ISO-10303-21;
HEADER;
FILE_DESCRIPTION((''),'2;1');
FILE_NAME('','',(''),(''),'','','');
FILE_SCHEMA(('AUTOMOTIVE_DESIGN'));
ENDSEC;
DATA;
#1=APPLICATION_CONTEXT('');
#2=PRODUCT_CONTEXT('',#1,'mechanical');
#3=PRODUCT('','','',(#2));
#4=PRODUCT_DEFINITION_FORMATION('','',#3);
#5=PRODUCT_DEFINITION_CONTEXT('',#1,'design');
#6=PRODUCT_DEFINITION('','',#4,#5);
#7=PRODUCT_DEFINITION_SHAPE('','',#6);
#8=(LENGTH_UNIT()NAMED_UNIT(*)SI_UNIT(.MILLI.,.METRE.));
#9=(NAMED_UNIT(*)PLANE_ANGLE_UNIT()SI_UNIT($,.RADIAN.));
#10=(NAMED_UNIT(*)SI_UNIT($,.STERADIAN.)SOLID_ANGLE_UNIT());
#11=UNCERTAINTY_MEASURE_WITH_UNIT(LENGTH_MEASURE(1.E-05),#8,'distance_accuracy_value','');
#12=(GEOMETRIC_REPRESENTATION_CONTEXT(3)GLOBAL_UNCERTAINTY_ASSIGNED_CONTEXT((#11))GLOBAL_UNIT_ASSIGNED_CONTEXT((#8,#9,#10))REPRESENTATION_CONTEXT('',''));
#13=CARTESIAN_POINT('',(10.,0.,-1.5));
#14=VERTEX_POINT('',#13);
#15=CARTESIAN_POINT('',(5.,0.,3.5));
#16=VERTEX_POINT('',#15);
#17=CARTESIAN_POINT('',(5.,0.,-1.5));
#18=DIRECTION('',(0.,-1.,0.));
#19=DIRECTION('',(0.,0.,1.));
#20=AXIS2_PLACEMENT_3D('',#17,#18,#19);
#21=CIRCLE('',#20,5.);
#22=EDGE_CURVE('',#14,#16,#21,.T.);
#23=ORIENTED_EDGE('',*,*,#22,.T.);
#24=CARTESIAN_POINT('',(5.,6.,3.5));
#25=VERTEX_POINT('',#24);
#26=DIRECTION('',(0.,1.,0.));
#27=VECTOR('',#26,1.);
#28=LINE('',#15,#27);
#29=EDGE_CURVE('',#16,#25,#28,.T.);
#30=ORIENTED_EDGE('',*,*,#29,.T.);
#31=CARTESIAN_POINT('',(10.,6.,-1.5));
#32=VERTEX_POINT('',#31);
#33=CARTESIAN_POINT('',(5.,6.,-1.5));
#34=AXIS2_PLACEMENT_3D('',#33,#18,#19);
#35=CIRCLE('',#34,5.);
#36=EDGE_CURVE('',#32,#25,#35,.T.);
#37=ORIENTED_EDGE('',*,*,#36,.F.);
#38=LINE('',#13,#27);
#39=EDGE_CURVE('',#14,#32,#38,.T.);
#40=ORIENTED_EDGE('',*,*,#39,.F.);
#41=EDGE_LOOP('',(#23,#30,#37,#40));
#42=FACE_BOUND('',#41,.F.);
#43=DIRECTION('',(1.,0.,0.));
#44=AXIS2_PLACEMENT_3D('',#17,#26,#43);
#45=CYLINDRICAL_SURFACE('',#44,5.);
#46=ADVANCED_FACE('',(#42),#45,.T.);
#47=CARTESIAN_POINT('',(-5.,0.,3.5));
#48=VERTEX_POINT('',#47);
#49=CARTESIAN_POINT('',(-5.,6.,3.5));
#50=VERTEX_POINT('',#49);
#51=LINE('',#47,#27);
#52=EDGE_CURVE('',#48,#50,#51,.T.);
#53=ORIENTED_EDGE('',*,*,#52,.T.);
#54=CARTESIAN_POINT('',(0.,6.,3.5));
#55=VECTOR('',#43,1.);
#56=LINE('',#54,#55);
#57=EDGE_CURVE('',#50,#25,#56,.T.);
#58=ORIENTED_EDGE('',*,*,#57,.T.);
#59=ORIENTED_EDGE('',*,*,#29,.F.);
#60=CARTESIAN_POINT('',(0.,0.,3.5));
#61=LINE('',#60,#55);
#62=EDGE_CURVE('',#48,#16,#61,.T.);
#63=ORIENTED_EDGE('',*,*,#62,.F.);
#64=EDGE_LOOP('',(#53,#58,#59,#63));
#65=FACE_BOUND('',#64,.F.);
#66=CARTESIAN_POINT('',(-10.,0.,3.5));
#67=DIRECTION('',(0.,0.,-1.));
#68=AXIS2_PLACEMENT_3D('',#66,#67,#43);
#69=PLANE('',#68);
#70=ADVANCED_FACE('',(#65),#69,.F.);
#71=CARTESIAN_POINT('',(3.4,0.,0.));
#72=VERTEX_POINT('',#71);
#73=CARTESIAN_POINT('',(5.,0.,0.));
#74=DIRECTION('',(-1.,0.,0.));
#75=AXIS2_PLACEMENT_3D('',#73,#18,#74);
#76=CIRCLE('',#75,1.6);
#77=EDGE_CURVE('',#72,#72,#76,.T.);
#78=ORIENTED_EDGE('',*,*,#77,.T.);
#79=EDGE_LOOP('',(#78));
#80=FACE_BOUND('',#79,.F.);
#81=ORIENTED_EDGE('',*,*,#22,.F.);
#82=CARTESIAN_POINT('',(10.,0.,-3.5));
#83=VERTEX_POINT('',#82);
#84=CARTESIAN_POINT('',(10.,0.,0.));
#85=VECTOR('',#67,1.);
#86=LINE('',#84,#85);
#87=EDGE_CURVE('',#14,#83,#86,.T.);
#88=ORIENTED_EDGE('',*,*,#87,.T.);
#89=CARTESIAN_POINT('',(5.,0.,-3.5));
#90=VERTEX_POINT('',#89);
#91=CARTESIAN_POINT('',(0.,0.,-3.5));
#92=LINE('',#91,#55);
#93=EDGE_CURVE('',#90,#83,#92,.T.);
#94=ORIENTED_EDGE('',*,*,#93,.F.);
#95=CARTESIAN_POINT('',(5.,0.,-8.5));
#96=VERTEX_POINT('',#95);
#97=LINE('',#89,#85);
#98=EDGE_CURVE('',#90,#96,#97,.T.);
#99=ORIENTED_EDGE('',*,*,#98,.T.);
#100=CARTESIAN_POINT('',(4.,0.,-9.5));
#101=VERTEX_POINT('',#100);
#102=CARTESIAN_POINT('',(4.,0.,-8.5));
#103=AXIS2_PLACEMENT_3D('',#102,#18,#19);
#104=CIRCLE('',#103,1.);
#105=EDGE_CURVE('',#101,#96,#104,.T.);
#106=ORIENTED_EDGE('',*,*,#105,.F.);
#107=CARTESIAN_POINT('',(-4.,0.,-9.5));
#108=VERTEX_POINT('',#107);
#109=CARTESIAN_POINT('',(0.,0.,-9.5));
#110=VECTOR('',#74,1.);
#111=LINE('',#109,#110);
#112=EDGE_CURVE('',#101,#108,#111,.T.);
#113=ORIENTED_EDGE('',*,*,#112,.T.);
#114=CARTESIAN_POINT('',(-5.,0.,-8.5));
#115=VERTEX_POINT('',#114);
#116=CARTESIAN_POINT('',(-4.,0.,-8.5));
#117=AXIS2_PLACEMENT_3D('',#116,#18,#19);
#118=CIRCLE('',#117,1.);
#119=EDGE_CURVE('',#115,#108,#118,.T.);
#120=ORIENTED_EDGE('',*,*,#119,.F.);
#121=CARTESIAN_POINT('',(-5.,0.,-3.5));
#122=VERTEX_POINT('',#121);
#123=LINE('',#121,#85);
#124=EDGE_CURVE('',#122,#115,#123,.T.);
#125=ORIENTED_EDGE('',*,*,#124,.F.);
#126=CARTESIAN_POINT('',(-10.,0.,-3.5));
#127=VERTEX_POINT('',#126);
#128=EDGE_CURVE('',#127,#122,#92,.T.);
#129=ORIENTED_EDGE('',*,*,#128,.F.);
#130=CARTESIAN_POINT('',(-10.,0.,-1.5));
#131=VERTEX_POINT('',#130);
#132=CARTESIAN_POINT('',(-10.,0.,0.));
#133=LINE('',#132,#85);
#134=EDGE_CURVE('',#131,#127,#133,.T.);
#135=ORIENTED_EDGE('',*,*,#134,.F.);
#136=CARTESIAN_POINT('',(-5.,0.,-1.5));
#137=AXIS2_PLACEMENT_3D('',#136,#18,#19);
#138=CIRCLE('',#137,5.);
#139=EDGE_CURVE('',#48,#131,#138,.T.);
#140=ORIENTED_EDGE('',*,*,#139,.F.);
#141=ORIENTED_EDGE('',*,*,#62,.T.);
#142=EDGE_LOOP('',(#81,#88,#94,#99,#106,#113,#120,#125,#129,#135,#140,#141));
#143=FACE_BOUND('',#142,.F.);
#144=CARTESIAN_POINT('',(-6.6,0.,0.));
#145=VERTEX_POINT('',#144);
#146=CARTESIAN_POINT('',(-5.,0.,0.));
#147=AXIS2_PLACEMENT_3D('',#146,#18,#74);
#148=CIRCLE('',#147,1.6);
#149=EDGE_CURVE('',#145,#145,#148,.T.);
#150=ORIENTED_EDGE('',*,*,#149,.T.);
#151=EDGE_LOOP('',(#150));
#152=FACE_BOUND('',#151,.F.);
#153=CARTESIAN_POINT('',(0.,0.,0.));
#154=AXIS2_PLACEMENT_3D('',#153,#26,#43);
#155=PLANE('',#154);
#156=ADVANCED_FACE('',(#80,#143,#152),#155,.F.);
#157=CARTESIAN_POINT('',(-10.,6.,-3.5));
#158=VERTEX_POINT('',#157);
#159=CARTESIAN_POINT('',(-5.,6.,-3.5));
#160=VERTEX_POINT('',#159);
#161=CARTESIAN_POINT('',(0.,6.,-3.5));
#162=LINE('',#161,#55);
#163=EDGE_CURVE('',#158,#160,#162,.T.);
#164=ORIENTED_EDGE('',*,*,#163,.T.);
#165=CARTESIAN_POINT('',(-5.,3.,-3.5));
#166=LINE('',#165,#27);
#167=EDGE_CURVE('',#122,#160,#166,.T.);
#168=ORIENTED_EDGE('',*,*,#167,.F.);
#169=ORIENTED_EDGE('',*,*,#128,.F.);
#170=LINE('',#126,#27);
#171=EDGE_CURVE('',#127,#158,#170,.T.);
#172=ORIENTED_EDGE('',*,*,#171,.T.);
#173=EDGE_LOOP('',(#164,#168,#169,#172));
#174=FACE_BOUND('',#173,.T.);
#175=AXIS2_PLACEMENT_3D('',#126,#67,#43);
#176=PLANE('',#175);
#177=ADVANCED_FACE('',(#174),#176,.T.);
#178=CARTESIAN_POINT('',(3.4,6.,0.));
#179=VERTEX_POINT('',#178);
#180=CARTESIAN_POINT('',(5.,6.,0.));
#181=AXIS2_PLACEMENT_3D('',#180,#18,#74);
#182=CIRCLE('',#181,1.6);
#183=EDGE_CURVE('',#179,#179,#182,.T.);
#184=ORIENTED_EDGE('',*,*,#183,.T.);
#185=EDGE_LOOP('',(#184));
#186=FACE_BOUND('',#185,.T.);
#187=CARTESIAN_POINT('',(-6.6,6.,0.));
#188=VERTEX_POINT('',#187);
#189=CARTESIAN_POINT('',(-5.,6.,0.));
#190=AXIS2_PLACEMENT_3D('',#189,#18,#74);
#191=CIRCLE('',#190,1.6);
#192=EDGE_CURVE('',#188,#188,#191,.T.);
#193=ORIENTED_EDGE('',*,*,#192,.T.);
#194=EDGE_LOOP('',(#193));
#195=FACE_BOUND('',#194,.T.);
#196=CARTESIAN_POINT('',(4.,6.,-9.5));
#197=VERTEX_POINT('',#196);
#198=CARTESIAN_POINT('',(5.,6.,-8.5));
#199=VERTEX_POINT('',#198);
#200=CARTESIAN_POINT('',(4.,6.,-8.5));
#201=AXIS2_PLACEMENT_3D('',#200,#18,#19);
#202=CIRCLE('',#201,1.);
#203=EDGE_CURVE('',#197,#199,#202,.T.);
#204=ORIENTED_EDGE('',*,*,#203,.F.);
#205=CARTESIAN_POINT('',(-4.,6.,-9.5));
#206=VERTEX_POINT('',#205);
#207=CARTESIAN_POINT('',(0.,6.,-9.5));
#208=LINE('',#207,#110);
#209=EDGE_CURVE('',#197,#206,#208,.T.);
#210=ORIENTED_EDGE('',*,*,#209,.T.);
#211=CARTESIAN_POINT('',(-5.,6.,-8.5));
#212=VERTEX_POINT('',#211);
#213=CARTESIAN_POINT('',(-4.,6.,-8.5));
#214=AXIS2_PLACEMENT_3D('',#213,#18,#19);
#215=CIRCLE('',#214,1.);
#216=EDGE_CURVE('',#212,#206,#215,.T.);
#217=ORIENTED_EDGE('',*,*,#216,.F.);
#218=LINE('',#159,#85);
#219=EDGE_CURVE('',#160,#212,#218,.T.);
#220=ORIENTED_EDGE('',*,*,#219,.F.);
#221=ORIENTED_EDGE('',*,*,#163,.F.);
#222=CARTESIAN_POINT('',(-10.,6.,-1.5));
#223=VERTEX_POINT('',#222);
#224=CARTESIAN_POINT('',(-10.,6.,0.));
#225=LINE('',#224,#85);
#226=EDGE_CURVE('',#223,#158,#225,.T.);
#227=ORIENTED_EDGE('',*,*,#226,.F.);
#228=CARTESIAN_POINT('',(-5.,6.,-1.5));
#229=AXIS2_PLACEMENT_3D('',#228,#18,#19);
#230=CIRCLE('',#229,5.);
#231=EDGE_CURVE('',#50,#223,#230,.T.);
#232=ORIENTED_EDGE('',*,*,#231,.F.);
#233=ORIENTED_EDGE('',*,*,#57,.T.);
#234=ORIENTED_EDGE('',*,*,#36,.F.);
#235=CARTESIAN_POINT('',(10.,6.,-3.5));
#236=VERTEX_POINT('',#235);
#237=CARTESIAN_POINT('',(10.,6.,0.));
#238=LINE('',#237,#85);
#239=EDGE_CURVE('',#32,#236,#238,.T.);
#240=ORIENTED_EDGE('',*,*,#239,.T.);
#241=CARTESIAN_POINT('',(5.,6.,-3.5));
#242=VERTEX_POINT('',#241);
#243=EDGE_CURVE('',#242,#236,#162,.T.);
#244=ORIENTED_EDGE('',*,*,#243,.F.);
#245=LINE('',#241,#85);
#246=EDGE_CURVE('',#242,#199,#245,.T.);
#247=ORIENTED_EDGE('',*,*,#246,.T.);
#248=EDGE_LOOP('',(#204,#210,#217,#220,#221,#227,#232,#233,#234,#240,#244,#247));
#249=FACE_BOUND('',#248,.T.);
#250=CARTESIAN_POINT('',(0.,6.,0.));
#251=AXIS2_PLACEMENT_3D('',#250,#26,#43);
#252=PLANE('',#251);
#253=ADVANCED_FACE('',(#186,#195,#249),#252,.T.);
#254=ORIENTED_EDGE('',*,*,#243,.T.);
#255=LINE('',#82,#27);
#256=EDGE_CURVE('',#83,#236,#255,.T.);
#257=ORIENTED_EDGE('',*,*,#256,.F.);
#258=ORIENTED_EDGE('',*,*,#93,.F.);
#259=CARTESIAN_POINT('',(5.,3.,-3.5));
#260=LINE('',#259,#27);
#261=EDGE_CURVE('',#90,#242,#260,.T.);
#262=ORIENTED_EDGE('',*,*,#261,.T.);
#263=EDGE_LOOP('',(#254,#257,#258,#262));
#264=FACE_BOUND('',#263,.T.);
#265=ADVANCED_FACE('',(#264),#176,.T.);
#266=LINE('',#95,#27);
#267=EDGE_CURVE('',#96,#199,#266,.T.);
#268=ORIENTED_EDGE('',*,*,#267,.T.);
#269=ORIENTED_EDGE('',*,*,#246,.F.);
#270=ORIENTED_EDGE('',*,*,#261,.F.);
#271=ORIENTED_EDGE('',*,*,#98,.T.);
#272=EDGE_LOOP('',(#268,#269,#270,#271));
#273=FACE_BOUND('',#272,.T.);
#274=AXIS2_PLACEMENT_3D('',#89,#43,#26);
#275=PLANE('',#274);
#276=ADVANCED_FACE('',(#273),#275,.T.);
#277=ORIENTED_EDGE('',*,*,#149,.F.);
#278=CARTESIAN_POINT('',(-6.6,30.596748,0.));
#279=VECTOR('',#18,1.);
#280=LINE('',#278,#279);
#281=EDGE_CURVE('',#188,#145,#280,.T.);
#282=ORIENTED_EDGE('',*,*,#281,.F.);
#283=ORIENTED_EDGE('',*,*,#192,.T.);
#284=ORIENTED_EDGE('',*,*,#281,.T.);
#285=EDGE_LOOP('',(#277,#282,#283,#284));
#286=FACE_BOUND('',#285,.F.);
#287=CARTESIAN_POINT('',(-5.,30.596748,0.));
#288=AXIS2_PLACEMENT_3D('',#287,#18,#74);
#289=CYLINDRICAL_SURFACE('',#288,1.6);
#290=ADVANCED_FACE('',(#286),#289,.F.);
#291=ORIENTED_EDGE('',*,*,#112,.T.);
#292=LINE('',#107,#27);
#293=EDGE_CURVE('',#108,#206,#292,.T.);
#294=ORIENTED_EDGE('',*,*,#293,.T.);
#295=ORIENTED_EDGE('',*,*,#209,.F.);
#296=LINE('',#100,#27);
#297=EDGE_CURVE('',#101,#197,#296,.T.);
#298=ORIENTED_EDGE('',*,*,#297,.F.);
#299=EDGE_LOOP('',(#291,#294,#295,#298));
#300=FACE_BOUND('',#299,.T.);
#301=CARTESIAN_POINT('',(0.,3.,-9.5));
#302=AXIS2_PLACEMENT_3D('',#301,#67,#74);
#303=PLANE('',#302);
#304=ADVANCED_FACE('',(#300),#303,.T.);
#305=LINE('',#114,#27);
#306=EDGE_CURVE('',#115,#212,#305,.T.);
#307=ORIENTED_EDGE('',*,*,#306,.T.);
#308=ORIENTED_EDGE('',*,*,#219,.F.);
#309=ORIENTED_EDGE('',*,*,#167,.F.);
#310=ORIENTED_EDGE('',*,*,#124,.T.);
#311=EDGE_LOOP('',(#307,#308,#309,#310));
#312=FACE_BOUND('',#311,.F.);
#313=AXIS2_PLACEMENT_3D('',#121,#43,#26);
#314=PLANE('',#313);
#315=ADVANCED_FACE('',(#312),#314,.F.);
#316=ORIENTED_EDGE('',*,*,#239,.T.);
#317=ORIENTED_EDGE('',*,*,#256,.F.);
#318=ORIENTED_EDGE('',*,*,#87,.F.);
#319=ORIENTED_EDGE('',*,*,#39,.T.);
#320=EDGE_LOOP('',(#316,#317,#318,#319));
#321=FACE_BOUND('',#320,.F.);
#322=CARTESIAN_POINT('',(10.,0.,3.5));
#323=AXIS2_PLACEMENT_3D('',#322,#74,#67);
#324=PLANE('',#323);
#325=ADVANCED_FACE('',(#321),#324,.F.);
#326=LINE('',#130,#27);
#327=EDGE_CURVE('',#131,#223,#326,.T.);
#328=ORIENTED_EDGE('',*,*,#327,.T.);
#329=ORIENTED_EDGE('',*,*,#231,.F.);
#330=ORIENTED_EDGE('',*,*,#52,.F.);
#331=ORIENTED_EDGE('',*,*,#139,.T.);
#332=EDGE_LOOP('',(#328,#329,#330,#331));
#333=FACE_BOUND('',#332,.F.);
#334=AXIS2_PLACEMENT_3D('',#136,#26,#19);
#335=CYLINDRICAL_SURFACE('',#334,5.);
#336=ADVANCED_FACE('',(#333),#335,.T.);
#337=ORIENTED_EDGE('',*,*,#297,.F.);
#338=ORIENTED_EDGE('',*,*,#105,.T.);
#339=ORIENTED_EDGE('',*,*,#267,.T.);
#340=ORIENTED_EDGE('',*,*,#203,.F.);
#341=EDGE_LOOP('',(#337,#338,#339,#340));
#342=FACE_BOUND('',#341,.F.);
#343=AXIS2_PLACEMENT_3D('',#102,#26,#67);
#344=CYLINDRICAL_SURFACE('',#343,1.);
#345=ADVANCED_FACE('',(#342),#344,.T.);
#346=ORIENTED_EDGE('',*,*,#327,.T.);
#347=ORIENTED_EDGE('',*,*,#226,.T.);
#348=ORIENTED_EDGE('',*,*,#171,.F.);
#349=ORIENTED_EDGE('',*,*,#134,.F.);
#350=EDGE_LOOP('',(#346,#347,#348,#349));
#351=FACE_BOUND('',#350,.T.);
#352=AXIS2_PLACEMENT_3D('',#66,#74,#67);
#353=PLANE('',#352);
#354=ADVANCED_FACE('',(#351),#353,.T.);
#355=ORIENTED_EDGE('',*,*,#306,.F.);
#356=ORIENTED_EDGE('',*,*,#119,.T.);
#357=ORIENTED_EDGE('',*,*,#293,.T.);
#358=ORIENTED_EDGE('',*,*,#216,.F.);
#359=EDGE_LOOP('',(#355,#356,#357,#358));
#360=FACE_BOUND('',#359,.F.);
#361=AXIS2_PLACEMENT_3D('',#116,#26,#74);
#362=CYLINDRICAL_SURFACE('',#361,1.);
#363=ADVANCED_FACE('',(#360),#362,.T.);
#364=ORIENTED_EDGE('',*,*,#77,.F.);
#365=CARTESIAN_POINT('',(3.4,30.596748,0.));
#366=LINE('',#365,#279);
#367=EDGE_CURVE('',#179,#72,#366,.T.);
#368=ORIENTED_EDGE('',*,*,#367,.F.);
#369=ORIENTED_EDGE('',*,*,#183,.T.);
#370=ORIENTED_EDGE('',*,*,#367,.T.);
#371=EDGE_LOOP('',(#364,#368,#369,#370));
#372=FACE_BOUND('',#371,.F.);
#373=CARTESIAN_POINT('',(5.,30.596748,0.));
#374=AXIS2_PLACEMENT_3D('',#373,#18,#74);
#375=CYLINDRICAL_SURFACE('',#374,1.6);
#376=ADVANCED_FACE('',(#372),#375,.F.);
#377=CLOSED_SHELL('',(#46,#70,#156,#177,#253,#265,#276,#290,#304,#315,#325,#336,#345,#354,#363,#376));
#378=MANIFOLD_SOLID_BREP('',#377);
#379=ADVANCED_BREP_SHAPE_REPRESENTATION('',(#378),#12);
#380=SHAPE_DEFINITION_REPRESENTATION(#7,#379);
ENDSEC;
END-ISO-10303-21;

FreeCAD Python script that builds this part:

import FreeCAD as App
import Part
import Sketcher
from FreeCAD import Vector
Q = App.Units.Quantity


def edges_at(feature, points):
    """Names of the edges that pass closest to the given points."""
    edges = feature.Shape.Edges
    near = lambda p: min(range(len(edges)), key=lambda i: edges[i].distToShape(Part.Vertex(*p))[0])
    return sorted({f"Edge{near(p) + 1}" for p in points})


def add_polygon(sketch, points):
    """Adds a closed chain of lines whose ends are joined by coincident constraints."""
    first, n = sketch.GeometryCount, len(points)
    for a, b in zip(points, points[1:] + points[:1]):
        sketch.addGeometry(Part.LineSegment(App.Vector(*a, 0), App.Vector(*b, 0)), False)
    for i in range(n):
        sketch.addConstraint(Sketcher.Constraint("Coincident", first + i, 2, first + (i + 1) % n, 1))

doc = App.newDocument("Part")
body = doc.addObject("PartDesign::Body", "Body")

sketch1 = body.newObject("Sketcher::SketchObject", "Sketch")
sketch1.AttachmentSupport = (doc.getObject("XZ_Plane"), [""])
sketch1.MapMode = "FlatFace"
add_polygon(sketch1, [(-10, -3.5), (-10, 3.5), (10, 3.5), (10, -3.5)])
sketch1.addConstraint(Sketcher.Constraint("Vertical", 0))
sketch1.addConstraint(Sketcher.Constraint("Horizontal", 1))
sketch1.addConstraint(Sketcher.Constraint("Vertical", 2))
sketch1.addConstraint(Sketcher.Constraint("Horizontal", 3))
sketch1.addConstraint(Sketcher.Constraint("Symmetric", 0, 2, 2, 2, -1, 1))
sketch1.addConstraint(Sketcher.Constraint("DistanceX", 1, 1, 1, 2, Q("20 mm")))
sketch1.addConstraint(Sketcher.Constraint("DistanceY", 0, 1, 0, 2, Q("7 mm")))
pad1 = body.newObject("PartDesign::Pad", "Pad")
pad1.Profile = sketch1
pad1.Length = 6
pad1.Reversed = True

sketch2 = body.newObject("Sketcher::SketchObject", "Sketch001")
sketch2.AttachmentSupport = (doc.getObject("XY_Plane"), [""])
sketch2.MapMode = "FlatFace"
sketch2.AttachmentOffset = App.Placement(Vector(0, 0, -3.5), App.Rotation())
add_polygon(sketch2, [(5, 6), (5, 0), (-5, 0), (-5, 6)])
sketch2.addConstraint(Sketcher.Constraint("Vertical", 0))
sketch2.addConstraint(Sketcher.Constraint("Horizontal", 1))
sketch2.addConstraint(Sketcher.Constraint("Vertical", 2))
sketch2.addConstraint(Sketcher.Constraint("Horizontal", 3))
sketch2.addConstraint(Sketcher.Constraint("Symmetric", 0, 2, 1, 2, -1, 1))
sketch2.addConstraint(Sketcher.Constraint("DistanceX", 1, 2, 1, 1, Q("10 mm")))
sketch2.addConstraint(Sketcher.Constraint("DistanceY", 0, 2, 0, 1, Q("6 mm")))
pad2 = body.newObject("PartDesign::Pad", "Pad001")
pad2.Profile = sketch2
pad2.Length = 6
pad2.Reversed = True
doc.recompute()

fillet = body.newObject("PartDesign::Fillet", "Fillet")
fillet.Base = (pad2, edges_at(pad2, [(5, 3, -9.5), (-5, 3, -9.5)]))
fillet.Radius = 1

sketch3 = body.newObject("Sketcher::SketchObject", "Sketch002")
sketch3.AttachmentSupport = (doc.getObject("XZ_Plane"), [""])
sketch3.MapMode = "FlatFace"
sketch3.AttachmentOffset = App.Placement(Vector(0, 0, -6), App.Rotation())
sketch3.addGeometry(Part.Circle(Vector(-5, 0, 0), Vector(0, 0, 1), 1.6), False)
sketch3.addGeometry(Part.Circle(Vector(5, 0, 0), Vector(0, 0, 1), 1.6), False)
sketch3.addConstraint(Sketcher.Constraint("Equal", 0, 1))
sketch3.addConstraint(Sketcher.Constraint("Symmetric", 0, 3, 1, 3, -1, 1))
sketch3.addConstraint(Sketcher.Constraint("PointOnObject", 0, 3, -1))
sketch3.addConstraint(Sketcher.Constraint("Diameter", 0, Q("3.2 mm")))
sketch3.addConstraint(Sketcher.Constraint("DistanceX", 0, 3, -1, 1, Q("5 mm")))
doc.recompute()
hole = body.newObject("PartDesign::Hole", "Hole")
hole.Profile = sketch3
hole.ThreadType = "None"
hole.Diameter = 3.2
hole.DepthType = "ThroughAll"
hole.Reversed = True
doc.recompute()

fillet2 = body.newObject("PartDesign::Fillet", "Fillet001")
fillet2.Base = (hole, edges_at(hole, [(10, 3, 3.5), (-10, 3, 3.5)]))
fillet2.Radius = 5

doc.recompute()
